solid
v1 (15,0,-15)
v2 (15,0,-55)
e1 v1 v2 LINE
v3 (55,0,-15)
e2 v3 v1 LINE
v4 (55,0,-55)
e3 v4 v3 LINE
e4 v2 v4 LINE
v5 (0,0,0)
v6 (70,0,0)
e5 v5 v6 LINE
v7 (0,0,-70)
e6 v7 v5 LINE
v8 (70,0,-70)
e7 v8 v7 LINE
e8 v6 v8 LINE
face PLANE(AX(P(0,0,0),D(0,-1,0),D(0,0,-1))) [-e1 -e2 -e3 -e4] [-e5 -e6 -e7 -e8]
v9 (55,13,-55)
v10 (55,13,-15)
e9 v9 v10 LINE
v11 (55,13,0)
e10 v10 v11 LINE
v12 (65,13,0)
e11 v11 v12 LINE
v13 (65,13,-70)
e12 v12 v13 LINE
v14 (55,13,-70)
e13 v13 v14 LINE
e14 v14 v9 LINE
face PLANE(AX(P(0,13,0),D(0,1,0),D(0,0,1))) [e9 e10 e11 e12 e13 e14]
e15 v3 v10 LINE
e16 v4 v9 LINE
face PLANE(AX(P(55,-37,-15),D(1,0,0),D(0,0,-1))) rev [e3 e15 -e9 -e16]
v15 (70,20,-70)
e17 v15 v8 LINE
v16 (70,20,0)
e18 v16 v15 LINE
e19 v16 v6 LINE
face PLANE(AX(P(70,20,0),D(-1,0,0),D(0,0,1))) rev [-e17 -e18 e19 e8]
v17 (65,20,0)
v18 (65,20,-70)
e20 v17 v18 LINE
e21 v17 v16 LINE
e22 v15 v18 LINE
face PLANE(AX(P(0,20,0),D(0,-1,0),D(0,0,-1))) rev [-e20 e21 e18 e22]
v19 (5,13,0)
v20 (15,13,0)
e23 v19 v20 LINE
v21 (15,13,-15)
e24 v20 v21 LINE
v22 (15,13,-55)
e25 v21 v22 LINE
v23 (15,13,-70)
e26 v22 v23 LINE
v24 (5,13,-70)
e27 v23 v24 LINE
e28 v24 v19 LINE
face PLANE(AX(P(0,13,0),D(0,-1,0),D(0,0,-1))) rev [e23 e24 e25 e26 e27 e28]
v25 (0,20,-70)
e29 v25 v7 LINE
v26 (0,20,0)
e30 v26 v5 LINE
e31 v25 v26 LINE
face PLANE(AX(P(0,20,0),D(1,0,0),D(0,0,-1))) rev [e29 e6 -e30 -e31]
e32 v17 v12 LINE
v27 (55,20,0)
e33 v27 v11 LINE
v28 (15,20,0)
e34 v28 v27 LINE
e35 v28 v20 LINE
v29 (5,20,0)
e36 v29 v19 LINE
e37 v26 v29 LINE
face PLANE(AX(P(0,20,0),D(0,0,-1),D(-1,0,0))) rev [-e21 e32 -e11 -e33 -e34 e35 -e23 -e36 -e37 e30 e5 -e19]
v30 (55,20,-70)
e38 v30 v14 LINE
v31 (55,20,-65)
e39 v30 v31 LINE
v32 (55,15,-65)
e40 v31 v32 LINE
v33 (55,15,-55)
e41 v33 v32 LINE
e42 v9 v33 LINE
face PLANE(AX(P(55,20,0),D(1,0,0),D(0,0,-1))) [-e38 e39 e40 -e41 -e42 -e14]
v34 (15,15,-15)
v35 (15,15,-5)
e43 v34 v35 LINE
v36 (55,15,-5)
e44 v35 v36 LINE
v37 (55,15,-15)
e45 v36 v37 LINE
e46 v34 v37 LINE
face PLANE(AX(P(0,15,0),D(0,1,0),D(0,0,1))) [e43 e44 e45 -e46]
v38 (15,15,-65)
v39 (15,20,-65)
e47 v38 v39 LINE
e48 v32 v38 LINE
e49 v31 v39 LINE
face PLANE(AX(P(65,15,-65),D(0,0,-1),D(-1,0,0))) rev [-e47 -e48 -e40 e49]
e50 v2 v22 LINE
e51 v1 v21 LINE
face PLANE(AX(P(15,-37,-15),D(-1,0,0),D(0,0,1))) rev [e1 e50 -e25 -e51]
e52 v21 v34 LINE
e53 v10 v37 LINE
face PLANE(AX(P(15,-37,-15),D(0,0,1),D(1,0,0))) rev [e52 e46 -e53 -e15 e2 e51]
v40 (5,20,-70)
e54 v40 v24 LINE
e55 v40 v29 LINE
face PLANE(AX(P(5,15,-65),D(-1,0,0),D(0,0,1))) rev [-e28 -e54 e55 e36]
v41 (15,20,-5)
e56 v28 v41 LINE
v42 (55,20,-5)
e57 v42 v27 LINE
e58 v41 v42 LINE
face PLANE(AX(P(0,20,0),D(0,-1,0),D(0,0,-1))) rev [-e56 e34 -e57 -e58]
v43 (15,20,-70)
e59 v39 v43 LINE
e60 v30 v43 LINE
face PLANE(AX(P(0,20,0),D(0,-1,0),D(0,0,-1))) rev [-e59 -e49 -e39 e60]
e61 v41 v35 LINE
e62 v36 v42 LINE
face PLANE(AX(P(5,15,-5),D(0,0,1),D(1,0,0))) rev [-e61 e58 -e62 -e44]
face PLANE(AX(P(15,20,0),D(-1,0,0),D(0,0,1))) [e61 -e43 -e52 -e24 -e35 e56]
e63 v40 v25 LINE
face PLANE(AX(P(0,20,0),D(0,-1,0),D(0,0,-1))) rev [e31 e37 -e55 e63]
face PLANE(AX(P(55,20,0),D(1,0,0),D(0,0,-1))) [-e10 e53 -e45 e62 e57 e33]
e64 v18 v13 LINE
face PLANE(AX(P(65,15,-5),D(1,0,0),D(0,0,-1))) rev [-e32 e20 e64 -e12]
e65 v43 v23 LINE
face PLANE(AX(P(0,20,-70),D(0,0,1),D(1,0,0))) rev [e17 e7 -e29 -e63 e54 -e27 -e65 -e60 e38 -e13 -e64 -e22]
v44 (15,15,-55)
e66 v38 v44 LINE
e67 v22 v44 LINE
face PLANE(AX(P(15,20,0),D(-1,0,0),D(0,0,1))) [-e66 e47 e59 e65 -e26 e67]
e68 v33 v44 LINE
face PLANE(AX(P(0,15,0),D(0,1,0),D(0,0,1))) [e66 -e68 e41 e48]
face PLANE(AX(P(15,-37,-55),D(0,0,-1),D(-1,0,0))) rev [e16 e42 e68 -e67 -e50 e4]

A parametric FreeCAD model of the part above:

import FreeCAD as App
import Part
import Sketcher

V = App.Vector

doc = App.newDocument("Part")
params = doc.addObject("Spreadsheet::Sheet", "Params")
for row, (alias, value) in enumerate([
    ("sketch1_width", "70 mm"),
    ("pad1_length", "20 mm"),
    ("sketch2_width", "60 mm"),
    ("pocket1_length", "5 mm"),
    ("sketch3_width", "10 mm"),
    ("sketch3_height", "70 mm"),
    ("pocket2_length", "5 mm"),
    ("pocket2_length2", "2 mm"),
    ("sketch4_width", "40 mm"),
    ("pocket3_length", "52 mm"),
], start=1):
    params.set(f"A{row}", alias)
    params.set(f"B{row}", "=" + value)
    params.setAlias(f"B{row}", alias)

body = doc.addObject("PartDesign::Body", "Body")

# Sketch on XZ plane
sketch1 = body.newObject("Sketcher::SketchObject", "Sketch")
sketch1.AttachmentSupport = (doc.getObject("XZ_Plane"), [""])
sketch1.MapMode = "FlatFace"
sketch1.addGeometry([
    Part.LineSegment(V(0, -70, 0), V(0, 0, 0)),
    Part.LineSegment(V(0, 0, 0), V(70, 0, 0)),
    Part.LineSegment(V(70, 0, 0), V(70, -70, 0)),
    Part.LineSegment(V(70, -70, 0), V(0, -70, 0)),
], False)
sketch1.addConstraint([
    Sketcher.Constraint("Coincident", 0, 2, 1, 1),
    Sketcher.Constraint("Coincident", 1, 2, 2, 1),
    Sketcher.Constraint("Coincident", 2, 2, 3, 1),
    Sketcher.Constraint("Coincident", 3, 2, 0, 1),
    Sketcher.Constraint("Vertical", 0),
    Sketcher.Constraint("Horizontal", 1),
    Sketcher.Constraint("Vertical", 2),
    Sketcher.Constraint("Horizontal", 3),
    Sketcher.Constraint("Coincident", 0, 2, -1, 1),
    Sketcher.Constraint("Equal", 3, 0),
    Sketcher.Constraint("DistanceX", 1, 1, 1, 2, 70.0),
])
sketch1.setExpression("Constraints[10]", "Params.sketch1_width")
pad1 = body.newObject("PartDesign::Pad", "Pad")
pad1.Profile = sketch1
pad1.setExpression("Length", "Params.pad1_length")
pad1.Reversed = True

# Sketch on XZ plane
sketch2 = body.newObject("Sketcher::SketchObject", "Sketch001")
sketch2.AttachmentSupport = (doc.getObject("XZ_Plane"), [""])
sketch2.MapMode = "FlatFace"
sketch2.AttachmentOffset = App.Placement(V(0, 0, -20), App.Rotation())
sketch2.addGeometry([
    Part.LineSegment(V(5, -65, 0), V(5, -5, 0)),
    Part.LineSegment(V(5, -5, 0), V(65, -5, 0)),
    Part.LineSegment(V(65, -5, 0), V(65, -65, 0)),
    Part.LineSegment(V(65, -65, 0), V(5, -65, 0)),
], False)
sketch2.addConstraint([
    Sketcher.Constraint("Coincident", 0, 2, 1, 1),
    Sketcher.Constraint("Coincident", 1, 2, 2, 1),
    Sketcher.Constraint("Coincident", 2, 2, 3, 1),
    Sketcher.Constraint("Coincident", 3, 2, 0, 1),
    Sketcher.Constraint("Vertical", 0),
    Sketcher.Constraint("Horizontal", 1),
    Sketcher.Constraint("Vertical", 2),
    Sketcher.Constraint("Horizontal", 3),
    Sketcher.Constraint("Equal", 3, 0),
    Sketcher.Constraint("DistanceX", 1, 1, 1, 2, 60.0),
    Sketcher.Constraint("DistanceX", -1, 1, 0, 2, 5.0),
    Sketcher.Constraint("DistanceY", 0, 2, -1, 1, 5.0),
])
sketch2.setExpression("Constraints[9]", "Params.sketch2_width")
pocket1 = body.newObject("PartDesign::Pocket", "Pocket")
pocket1.Profile = sketch2
pocket1.setExpression("Length", "Params.pocket1_length")
pocket1.Reversed = True

# Sketch on XZ plane
sketch3 = body.newObject("Sketcher::SketchObject", "Sketch002")
sketch3.AttachmentSupport = (doc.getObject("XZ_Plane"), [""])
sketch3.MapMode = "FlatFace"
sketch3.AttachmentOffset = App.Placement(V(0, 0, -15), App.Rotation())
sketch3.addGeometry([
    Part.LineSegment(V(5, -70, 0), V(5, 0, 0)),  # 0
    Part.LineSegment(V(5, 0, 0), V(15, 0, 0)),  # 1
    Part.LineSegment(V(15, 0, 0), V(15, -70, 0)),  # 2
    Part.LineSegment(V(15, -70, 0), V(5, -70, 0)),  # 3
    Part.LineSegment(V(55, -70, 0), V(55, 0, 0)),  # 4
    Part.LineSegment(V(55, 0, 0), V(65, 0, 0)),  # 5
    Part.LineSegment(V(65, 0, 0), V(65, -70, 0)),  # 6
    Part.LineSegment(V(65, -70, 0), V(55, -70, 0)),  # 7
], False)
sketch3.addConstraint([
    Sketcher.Constraint("Coincident", 0, 2, 1, 1),
    Sketcher.Constraint("Coincident", 1, 2, 2, 1),
    Sketcher.Constraint("Coincident", 2, 2, 3, 1),
    Sketcher.Constraint("Coincident", 3, 2, 0, 1),
    Sketcher.Constraint("Coincident", 4, 2, 5, 1),
    Sketcher.Constraint("Coincident", 5, 2, 6, 1),
    Sketcher.Constraint("Coincident", 6, 2, 7, 1),
    Sketcher.Constraint("Coincident", 7, 2, 4, 1),
    Sketcher.Constraint("Vertical", 0),
    Sketcher.Constraint("Horizontal", 1),
    Sketcher.Constraint("Vertical", 2),
    Sketcher.Constraint("Horizontal", 3),
    Sketcher.Constraint("Vertical", 4),
    Sketcher.Constraint("Horizontal", 5),
    Sketcher.Constraint("Vertical", 6),
    Sketcher.Constraint("Horizontal", 7),
    Sketcher.Constraint("PointOnObject", 0, 2, -1),
    Sketcher.Constraint("PointOnObject", 4, 2, -1),
    Sketcher.Constraint("Horizontal", 3, 2, 6, 2),
    Sketcher.Constraint("Equal", 3, 5),
    Sketcher.Constraint("DistanceX", 1, 1, 1, 2, 10.0),
    Sketcher.Constraint("DistanceY", 0, 1, 0, 2, 70.0),
    Sketcher.Constraint("DistanceX", -1, 1, 0, 2, 5.0),
    Sketcher.Constraint("DistanceX", -1, 1, 4, 2, 55.0),
])
sketch3.setExpression("Constraints[20]", "Params.sketch3_width")
sketch3.setExpression("Constraints[21]", "Params.sketch3_height")
pocket2 = body.newObject("PartDesign::Pocket", "Pocket001")
pocket2.Profile = sketch3
pocket2.Type = "TwoLengths"
pocket2.setExpression("Length", "Params.pocket2_length")
pocket2.setExpression("Length2", "Params.pocket2_length2")

# Sketch on XZ plane
sketch4 = body.newObject("Sketcher::SketchObject", "Sketch003")
sketch4.AttachmentSupport = (doc.getObject("XZ_Plane"), [""])
sketch4.MapMode = "FlatFace"
sketch4.AttachmentOffset = App.Placement(V(0, 0, -15), App.Rotation())
sketch4.addGeometry([
    Part.LineSegment(V(15, -55, 0), V(15, -15, 0)),
    Part.LineSegment(V(15, -15, 0), V(55, -15, 0)),
    Part.LineSegment(V(55, -15, 0), V(55, -55, 0)),
    Part.LineSegment(V(55, -55, 0), V(15, -55, 0)),
], False)
sketch4.addConstraint([
    Sketcher.Constraint("Coincident", 0, 2, 1, 1),
    Sketcher.Constraint("Coincident", 1, 2, 2, 1),
    Sketcher.Constraint("Coincident", 2, 2, 3, 1),
    Sketcher.Constraint("Coincident", 3, 2, 0, 1),
    Sketcher.Constraint("Vertical", 0),
    Sketcher.Constraint("Horizontal", 1),
    Sketcher.Constraint("Vertical", 2),
    Sketcher.Constraint("Horizontal", 3),
    Sketcher.Constraint("Equal", 3, 0),
    Sketcher.Constraint("DistanceX", 1, 1, 1, 2, 40.0),
    Sketcher.Constraint("DistanceX", -1, 1, 0, 2, 15.0),
    Sketcher.Constraint("DistanceY", 0, 2, -1, 1, 15.0),
])
sketch4.setExpression("Constraints[9]", "Params.sketch4_width")
pocket3 = body.newObject("PartDesign::Pocket", "Pocket002")
pocket3.Profile = sketch4
pocket3.setExpression("Length", "Params.pocket3_length")
pocket3.Reversed = True

doc.recompute()
